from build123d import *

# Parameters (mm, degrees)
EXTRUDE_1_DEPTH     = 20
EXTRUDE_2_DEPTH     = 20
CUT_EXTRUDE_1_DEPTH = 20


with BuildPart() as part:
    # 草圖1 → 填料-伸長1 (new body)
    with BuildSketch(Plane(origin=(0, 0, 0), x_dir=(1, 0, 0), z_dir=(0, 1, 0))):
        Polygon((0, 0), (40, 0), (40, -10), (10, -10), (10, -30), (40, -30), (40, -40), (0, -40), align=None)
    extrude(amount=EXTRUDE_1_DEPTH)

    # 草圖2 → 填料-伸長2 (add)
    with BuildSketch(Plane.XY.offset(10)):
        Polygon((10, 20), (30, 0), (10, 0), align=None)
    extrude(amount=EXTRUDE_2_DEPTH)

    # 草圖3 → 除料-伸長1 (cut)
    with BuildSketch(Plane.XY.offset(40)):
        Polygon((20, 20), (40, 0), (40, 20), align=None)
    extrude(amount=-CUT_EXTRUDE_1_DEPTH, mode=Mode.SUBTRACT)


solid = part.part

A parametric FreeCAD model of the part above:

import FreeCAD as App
import Part
import Sketcher
from FreeCAD import Vector
Q = App.Units.Quantity


def add_polygon(sketch, points):
    """Adds a closed chain of lines whose ends are joined by coincident constraints."""
    first, n = sketch.GeometryCount, len(points)
    for a, b in zip(points, points[1:] + points[:1]):
        sketch.addGeometry(Part.LineSegment(App.Vector(*a, 0), App.Vector(*b, 0)), False)
    for i in range(n):
        sketch.addConstraint(Sketcher.Constraint("Coincident", first + i, 2, first + (i + 1) % n, 1))

doc = App.newDocument("Part")
body = doc.addObject("PartDesign::Body", "Body")

# Sketch on XZ plane
sketch1 = body.newObject("Sketcher::SketchObject", "Sketch")
sketch1.AttachmentSupport = (doc.getObject("XZ_Plane"), [""])
sketch1.MapMode = "FlatFace"
add_polygon(sketch1, [(40, 0), (0, 0), (0, 40), (40, 40), (40, 30), (10, 30), (10, 10), (40, 10)])  # lines 0-7
sketch1.addConstraint([
    Sketcher.Constraint("Horizontal", 0),
    Sketcher.Constraint("Vertical", 1),
    Sketcher.Constraint("Horizontal", 2),
    Sketcher.Constraint("Vertical", 3),
    Sketcher.Constraint("Horizontal", 4),
    Sketcher.Constraint("Vertical", 5),
    Sketcher.Constraint("Horizontal", 6),
    Sketcher.Constraint("Vertical", 7),
    Sketcher.Constraint("Coincident", 0, 2, -1, 1),
    Sketcher.Constraint("Vertical", 3, 2, 6, 2),
    Sketcher.Constraint("Equal", 2, 1),
    Sketcher.Constraint("Equal", 3, 7),
    Sketcher.Constraint("DistanceX", 0, 2, 0, 1, Q("40 mm")),
    Sketcher.Constraint("DistanceX", 4, 2, 4, 1, Q("30 mm")),
    Sketcher.Constraint("DistanceY", 3, 2, 3, 1, Q("10 mm")),
])
pad1 = body.newObject("PartDesign::Pad", "Pad")
pad1.Profile = sketch1
pad1.Length = 20
pad1.Reversed = True

# Sketch on XY plane
sketch2 = body.newObject("Sketcher::SketchObject", "Sketch001")
sketch2.AttachmentSupport = (doc.getObject("XY_Plane"), [""])
sketch2.MapMode = "FlatFace"
sketch2.AttachmentOffset = App.Placement(Vector(0, 0, 10), App.Rotation())
add_polygon(sketch2, [(30, 0), (10, 20), (10, 0)])  # lines 0-2
sketch2.addConstraint([
    Sketcher.Constraint("Vertical", 1),
    Sketcher.Constraint("Horizontal", 2),
    Sketcher.Constraint("PointOnObject", 1, 2, -1),
    Sketcher.Constraint("Equal", 2, 1),
    Sketcher.Constraint("DistanceX", 2, 1, 2, 2, Q("20 mm")),
    Sketcher.Constraint("DistanceX", -1, 1, 0, 2, Q("10 mm")),
])
pad2 = body.newObject("PartDesign::Pad", "Pad001")
pad2.Profile = sketch2
pad2.Length = 20

# Sketch on XY plane
sketch3 = body.newObject("Sketcher::SketchObject", "Sketch002")
sketch3.AttachmentSupport = (doc.getObject("XY_Plane"), [""])
sketch3.MapMode = "FlatFace"
sketch3.AttachmentOffset = App.Placement(Vector(0, 0, 40), App.Rotation())
add_polygon(sketch3, [(20, 20), (40, 0), (40, 20)])  # lines 0-2
sketch3.addConstraint([
    Sketcher.Constraint("Vertical", 1),
    Sketcher.Constraint("Horizontal", 2),
    Sketcher.Constraint("PointOnObject", 0, 2, -1),
    Sketcher.Constraint("Equal", 2, 1),
    Sketcher.Constraint("DistanceX", 2, 2, 2, 1, Q("20 mm")),
    Sketcher.Constraint("DistanceX", -1, 1, 0, 2, Q("40 mm")),
])
pocket1 = body.newObject("PartDesign::Pocket", "Pocket")
pocket1.Profile = sketch3
pocket1.Length = 20

doc.recompute()
